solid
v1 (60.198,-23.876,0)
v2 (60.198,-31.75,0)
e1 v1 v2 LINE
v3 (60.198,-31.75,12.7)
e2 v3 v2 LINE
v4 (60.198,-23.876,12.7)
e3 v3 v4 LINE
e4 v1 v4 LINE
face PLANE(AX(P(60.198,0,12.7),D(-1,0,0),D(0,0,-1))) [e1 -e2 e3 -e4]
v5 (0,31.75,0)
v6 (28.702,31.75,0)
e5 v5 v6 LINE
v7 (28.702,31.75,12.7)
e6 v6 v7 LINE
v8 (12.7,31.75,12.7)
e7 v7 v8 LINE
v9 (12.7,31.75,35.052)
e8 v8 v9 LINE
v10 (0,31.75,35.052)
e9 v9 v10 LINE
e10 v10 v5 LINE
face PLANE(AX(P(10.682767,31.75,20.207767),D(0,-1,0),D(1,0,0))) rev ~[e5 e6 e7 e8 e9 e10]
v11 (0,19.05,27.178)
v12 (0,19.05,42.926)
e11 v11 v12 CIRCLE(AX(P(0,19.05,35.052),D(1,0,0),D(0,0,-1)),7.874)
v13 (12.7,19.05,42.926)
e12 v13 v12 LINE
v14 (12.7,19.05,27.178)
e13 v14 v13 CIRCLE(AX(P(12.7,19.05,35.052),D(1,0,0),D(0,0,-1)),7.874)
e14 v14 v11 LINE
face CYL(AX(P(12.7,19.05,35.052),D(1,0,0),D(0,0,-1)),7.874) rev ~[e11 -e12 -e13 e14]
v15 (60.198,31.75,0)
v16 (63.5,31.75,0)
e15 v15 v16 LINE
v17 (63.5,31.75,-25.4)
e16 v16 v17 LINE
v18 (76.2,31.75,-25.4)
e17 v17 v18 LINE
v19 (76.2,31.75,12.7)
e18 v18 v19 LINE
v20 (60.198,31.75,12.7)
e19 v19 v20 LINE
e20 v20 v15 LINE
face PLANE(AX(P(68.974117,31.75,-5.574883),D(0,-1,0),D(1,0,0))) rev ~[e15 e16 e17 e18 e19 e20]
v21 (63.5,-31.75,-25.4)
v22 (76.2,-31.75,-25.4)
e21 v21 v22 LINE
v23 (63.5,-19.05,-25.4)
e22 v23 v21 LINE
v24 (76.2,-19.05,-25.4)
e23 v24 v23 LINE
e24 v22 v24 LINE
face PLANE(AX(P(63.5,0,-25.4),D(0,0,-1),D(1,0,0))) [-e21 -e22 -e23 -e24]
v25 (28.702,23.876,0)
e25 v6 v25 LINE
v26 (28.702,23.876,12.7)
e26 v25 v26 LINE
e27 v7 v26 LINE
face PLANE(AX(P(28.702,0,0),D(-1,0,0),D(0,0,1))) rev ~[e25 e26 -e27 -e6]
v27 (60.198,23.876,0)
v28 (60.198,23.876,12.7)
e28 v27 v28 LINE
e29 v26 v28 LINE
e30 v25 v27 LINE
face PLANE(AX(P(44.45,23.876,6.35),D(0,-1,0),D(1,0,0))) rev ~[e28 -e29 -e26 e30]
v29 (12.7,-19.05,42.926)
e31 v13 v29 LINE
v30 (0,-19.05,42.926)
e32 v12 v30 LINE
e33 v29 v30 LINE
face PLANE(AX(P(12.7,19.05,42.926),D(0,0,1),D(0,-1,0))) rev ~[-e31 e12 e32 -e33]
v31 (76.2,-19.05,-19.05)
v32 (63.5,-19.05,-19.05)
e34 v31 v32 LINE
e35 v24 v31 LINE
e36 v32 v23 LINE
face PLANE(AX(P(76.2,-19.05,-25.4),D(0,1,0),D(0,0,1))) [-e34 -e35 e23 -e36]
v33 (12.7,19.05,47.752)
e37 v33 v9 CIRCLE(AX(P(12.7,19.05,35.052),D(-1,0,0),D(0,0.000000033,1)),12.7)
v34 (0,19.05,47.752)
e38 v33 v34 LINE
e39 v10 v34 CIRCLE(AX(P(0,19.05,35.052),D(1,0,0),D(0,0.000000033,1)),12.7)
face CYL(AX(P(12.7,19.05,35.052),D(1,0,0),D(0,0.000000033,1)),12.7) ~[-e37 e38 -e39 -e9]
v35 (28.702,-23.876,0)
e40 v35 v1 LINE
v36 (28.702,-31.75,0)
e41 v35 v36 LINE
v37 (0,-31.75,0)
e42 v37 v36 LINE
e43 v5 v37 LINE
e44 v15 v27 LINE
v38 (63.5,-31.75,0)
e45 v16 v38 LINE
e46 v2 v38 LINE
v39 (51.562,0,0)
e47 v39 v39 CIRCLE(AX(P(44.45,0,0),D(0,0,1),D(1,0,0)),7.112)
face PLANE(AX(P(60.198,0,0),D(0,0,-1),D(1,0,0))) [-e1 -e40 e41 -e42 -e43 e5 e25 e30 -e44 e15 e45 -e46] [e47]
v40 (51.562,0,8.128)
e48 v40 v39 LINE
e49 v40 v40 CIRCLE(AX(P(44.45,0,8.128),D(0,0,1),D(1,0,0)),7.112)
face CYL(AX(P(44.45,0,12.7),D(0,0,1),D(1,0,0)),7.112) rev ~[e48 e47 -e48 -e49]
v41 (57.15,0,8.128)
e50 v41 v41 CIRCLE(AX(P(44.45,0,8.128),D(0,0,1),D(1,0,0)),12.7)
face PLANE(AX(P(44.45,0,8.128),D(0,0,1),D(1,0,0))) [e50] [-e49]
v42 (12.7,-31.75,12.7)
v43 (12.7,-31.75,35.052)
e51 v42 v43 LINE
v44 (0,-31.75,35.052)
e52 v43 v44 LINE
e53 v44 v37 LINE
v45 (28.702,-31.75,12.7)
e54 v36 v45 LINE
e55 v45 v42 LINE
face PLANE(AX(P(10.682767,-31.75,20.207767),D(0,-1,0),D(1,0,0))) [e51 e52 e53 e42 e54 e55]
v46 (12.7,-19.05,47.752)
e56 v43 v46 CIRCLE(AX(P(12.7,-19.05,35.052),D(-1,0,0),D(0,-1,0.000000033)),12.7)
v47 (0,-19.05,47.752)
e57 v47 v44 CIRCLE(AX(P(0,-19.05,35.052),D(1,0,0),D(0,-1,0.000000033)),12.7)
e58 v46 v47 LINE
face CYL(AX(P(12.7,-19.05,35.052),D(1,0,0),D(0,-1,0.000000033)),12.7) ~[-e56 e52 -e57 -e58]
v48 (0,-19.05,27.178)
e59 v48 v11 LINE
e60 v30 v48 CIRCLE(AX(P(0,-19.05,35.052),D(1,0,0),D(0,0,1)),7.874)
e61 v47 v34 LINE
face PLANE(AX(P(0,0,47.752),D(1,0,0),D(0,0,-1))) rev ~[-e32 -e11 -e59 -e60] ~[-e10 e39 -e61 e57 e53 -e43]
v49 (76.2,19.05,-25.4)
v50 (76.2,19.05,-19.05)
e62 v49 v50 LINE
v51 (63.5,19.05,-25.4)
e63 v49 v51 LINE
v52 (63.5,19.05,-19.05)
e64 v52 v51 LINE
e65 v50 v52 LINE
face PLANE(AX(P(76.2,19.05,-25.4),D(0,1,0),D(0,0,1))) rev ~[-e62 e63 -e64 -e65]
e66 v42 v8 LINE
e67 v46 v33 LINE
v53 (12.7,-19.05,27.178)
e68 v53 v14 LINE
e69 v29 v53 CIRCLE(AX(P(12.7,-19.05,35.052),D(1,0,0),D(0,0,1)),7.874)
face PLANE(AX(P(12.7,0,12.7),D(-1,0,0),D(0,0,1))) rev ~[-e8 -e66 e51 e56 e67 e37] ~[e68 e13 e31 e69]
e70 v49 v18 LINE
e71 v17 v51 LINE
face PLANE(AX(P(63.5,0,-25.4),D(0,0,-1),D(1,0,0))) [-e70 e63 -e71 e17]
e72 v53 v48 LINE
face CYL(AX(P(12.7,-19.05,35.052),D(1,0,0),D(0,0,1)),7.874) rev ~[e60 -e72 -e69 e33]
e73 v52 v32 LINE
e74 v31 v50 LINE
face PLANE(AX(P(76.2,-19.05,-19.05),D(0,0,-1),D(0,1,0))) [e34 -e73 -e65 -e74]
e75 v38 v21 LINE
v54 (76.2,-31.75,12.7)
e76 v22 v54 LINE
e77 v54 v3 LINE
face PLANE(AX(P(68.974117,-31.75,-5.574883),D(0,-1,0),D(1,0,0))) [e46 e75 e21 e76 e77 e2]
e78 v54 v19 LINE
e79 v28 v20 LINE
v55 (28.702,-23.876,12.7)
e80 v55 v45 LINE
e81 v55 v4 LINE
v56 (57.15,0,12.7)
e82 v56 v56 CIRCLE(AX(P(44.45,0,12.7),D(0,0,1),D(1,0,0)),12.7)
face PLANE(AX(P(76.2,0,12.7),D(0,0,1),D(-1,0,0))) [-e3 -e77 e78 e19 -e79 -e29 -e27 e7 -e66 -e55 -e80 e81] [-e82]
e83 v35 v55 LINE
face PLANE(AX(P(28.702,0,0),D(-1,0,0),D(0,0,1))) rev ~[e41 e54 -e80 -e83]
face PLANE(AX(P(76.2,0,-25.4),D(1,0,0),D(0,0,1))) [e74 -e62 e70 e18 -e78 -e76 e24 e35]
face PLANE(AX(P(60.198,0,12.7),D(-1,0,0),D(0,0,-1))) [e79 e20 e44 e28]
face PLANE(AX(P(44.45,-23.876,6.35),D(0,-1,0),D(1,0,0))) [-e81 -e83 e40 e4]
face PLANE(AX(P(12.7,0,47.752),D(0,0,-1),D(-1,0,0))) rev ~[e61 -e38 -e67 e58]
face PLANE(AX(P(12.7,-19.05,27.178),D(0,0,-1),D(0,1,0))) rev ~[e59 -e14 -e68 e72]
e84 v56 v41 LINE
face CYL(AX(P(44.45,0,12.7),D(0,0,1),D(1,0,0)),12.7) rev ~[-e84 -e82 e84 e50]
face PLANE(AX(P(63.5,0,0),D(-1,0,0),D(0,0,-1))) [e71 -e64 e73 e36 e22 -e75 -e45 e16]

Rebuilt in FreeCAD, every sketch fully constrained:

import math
import FreeCAD as App
import Part
import Sketcher

V = App.Vector
Q = App.Units.Quantity

doc = App.newDocument("Part")
body = doc.addObject("PartDesign::Body", "Body")

# Sketch on XZ plane
sketch1 = body.newObject("Sketcher::SketchObject", "Sketch")
sketch1.AttachmentSupport = (doc.getObject("XZ_Plane"), [""])
sketch1.MapMode = "FlatFace"
sketch1.addGeometry([
    Part.LineSegment(V(29, 13, 0), V(29, 0, 0)),
    Part.LineSegment(V(29, 0, 0), V(60, 0, 0)),
    Part.LineSegment(V(60, 0, 0), V(60, 13, 0)),
    Part.LineSegment(V(60, 13, 0), V(29, 13, 0)),
], False)
sketch1.addConstraint([
    Sketcher.Constraint("Coincident", 0, 2, 1, 1),
    Sketcher.Constraint("Coincident", 1, 2, 2, 1),
    Sketcher.Constraint("Coincident", 2, 2, 3, 1),
    Sketcher.Constraint("Coincident", 3, 2, 0, 1),
    Sketcher.Constraint("Vertical", 0),
    Sketcher.Constraint("Horizontal", 1),
    Sketcher.Constraint("Vertical", 2),
    Sketcher.Constraint("Horizontal", 3),
    Sketcher.Constraint("PointOnObject", 0, 2, -1),
    Sketcher.Constraint("DistanceY", 0, 2, 0, 1, Q("0.5 in")),
    Sketcher.Constraint("DistanceX", 1, 1, 1, 2, Q("1.24 in")),
    Sketcher.Constraint("DistanceX", -1, 1, 0, 2, Q("1.13 in")),
])
pad1 = body.newObject("PartDesign::Pad", "Pad")
pad1.Profile = sketch1
pad1.Length = Q("1.88 in")
pad1.Midplane = True

# Sketch on XZ plane
sketch2 = body.newObject("Sketcher::SketchObject", "Sketch001")
sketch2.AttachmentSupport = (doc.getObject("XZ_Plane"), [""])
sketch2.MapMode = "FlatFace"
sketch2.addGeometry([
    Part.LineSegment(V(0, 47.8, 0), V(0, 0, 0)),  # 0
    Part.LineSegment(V(0, 0, 0), V(28.7, 0, 0)),  # 1
    Part.LineSegment(V(28.7, 0, 0), V(28.7, 12.7, 0)),  # 2
    Part.LineSegment(V(28.7, 12.7, 0), V(12.7, 12.7, 0)),  # 3
    Part.LineSegment(V(12.7, 12.7, 0), V(12.7, 47.8, 0)),  # 4
    Part.LineSegment(V(12.7, 47.8, 0), V(0, 47.8, 0)),  # 5
    Part.LineSegment(V(60.2, 12.7, 0), V(60.2, 0, 0)),  # 6
    Part.LineSegment(V(60.2, 0, 0), V(63.5, 0, 0)),  # 7
    Part.LineSegment(V(63.5, 0, 0), V(63.5, -25.4, 0)),  # 8
    Part.LineSegment(V(63.5, -25.4, 0), V(76.2, -25.4, 0)),  # 9
    Part.LineSegment(V(76.2, -25.4, 0), V(76.2, 12.7, 0)),  # 10
    Part.LineSegment(V(76.2, 12.7, 0), V(60.2, 12.7, 0)),  # 11
], False)
sketch2.addConstraint([
    Sketcher.Constraint("Coincident", 0, 2, 1, 1),
    Sketcher.Constraint("Coincident", 1, 2, 2, 1),
    Sketcher.Constraint("Coincident", 2, 2, 3, 1),
    Sketcher.Constraint("Coincident", 3, 2, 4, 1),
    Sketcher.Constraint("Coincident", 4, 2, 5, 1),
    Sketcher.Constraint("Coincident", 5, 2, 0, 1),
    Sketcher.Constraint("Coincident", 6, 2, 7, 1),
    Sketcher.Constraint("Coincident", 7, 2, 8, 1),
    Sketcher.Constraint("Coincident", 8, 2, 9, 1),
    Sketcher.Constraint("Coincident", 9, 2, 10, 1),
    Sketcher.Constraint("Coincident", 10, 2, 11, 1),
    Sketcher.Constraint("Coincident", 11, 2, 6, 1),
    Sketcher.Constraint("Vertical", 0),
    Sketcher.Constraint("Horizontal", 1),
    Sketcher.Constraint("Vertical", 2),
    Sketcher.Constraint("Horizontal", 3),
    Sketcher.Constraint("Vertical", 4),
    Sketcher.Constraint("Horizontal", 5),
    Sketcher.Constraint("Vertical", 6),
    Sketcher.Constraint("Horizontal", 7),
    Sketcher.Constraint("Vertical", 8),
    Sketcher.Constraint("Horizontal", 9),
    Sketcher.Constraint("Vertical", 10),
    Sketcher.Constraint("Horizontal", 11),
    Sketcher.Constraint("Coincident", 0, 2, -1, 1),
    Sketcher.Constraint("PointOnObject", 6, 2, -1),
    Sketcher.Constraint("Horizontal", 3, 2, 10, 2),
    Sketcher.Constraint("Equal", 5, 9),
    Sketcher.Constraint("Equal", 3, 11),
    Sketcher.Constraint("Equal", 9, 2),
    Sketcher.Constraint("DistanceY", 8, 2, 8, 1, Q("1 in")),
    Sketcher.Constraint("DistanceX", 5, 2, 5, 1, Q("0.5 in")),
    Sketcher.Constraint("DistanceX", -1, 1, 9, 2, Q("3 in")),
    Sketcher.Constraint("DistanceX", 1, 1, 1, 2, Q("1.13 in")),
    Sketcher.Constraint("DistanceY", 0, 2, 0, 1, Q("1.88 in")),
])
pad2 = body.newObject("PartDesign::Pad", "Pad001")
pad2.Profile = sketch2
pad2.Length = Q("2.5 in")
pad2.Midplane = True

# Sketch on YZ plane
sketch3 = body.newObject("Sketcher::SketchObject", "Sketch002")
sketch3.AttachmentSupport = (doc.getObject("YZ_Plane"), [""])
sketch3.MapMode = "FlatFace"
sketch3.AttachmentOffset = App.Placement(V(0, 0, 3 * 25.4), App.Rotation())
sketch3.addGeometry([
    Part.LineSegment(V(-19, -19, 0), V(-19, -25, 0)),
    Part.LineSegment(V(-19, -25, 0), V(19, -25, 0)),
    Part.LineSegment(V(19, -25, 0), V(19, -19, 0)),
    Part.LineSegment(V(19, -19, 0), V(-19, -19, 0)),
], False)
sketch3.addConstraint([
    Sketcher.Constraint("Coincident", 0, 2, 1, 1),
    Sketcher.Constraint("Coincident", 1, 2, 2, 1),
    Sketcher.Constraint("Coincident", 2, 2, 3, 1),
    Sketcher.Constraint("Coincident", 3, 2, 0, 1),
    Sketcher.Constraint("Vertical", 0),
    Sketcher.Constraint("Horizontal", 1),
    Sketcher.Constraint("Vertical", 2),
    Sketcher.Constraint("Horizontal", 3),
    Sketcher.Constraint("DistanceX", 1, 1, 1, 2, Q("1.5 in")),
    Sketcher.Constraint("DistanceY", 0, 2, -1, 1, Q("1 in")),
    Sketcher.Constraint("DistanceY", 0, 2, 0, 1, Q("0.25 in")),
    Sketcher.Constraint("DistanceX", 0, 2, -1, 1, Q("0.75 in")),
])
pocket1 = body.newObject("PartDesign::Pocket", "Pocket")
pocket1.Profile = sketch3
pocket1.Type = "ThroughAll"

# Sketch on YZ plane
sketch4 = body.newObject("Sketcher::SketchObject", "Sketch003")
sketch4.AttachmentSupport = (doc.getObject("YZ_Plane"), [""])
sketch4.MapMode = "FlatFace"
sketch4.AttachmentOffset = App.Placement(V(0, 0, 0.5 * 25.4), App.Rotation())
sketch4.addGeometry([
    Part.ArcOfCircle(Part.Circle(V(-19, 35, 0), V(0, 0, 1), 13), math.radians(90), math.radians(180)),  # 0
    Part.LineSegment(V(-19, 48, 0), V(-32, 48, 0)),  # 1
    Part.LineSegment(V(-32, 48, 0), V(-32, 35, 0)),  # 2
    Part.LineSegment(V(19, 43, 0), V(-19, 43, 0)),  # 3
    Part.ArcOfCircle(Part.Circle(V(-19, 35, 0), V(0, 0, 1), 8), math.radians(90), math.radians(270)),  # 4
    Part.LineSegment(V(-19, 27, 0), V(19, 27, 0)),  # 5
    Part.ArcOfCircle(Part.Circle(V(19, 35, 0), V(0, 0, 1), 8), math.radians(-90), math.radians(90)),  # 6
    Part.LineSegment(V(32, 48, 0), V(19, 48, 0)),  # 7
    Part.ArcOfCircle(Part.Circle(V(19, 35, 0), V(0, 0, 1), 13), math.radians(0), math.radians(90)),  # 8
    Part.LineSegment(V(32, 35, 0), V(32, 48, 0)),  # 9
], False)
sketch4.addConstraint([
    Sketcher.Constraint("Tangent", 0, 1, 1, 1),
    Sketcher.Constraint("Coincident", 1, 2, 2, 1),
    Sketcher.Constraint("Tangent", 2, 2, 0, 2),
    Sketcher.Constraint("Tangent", 3, 2, 4, 1),
    Sketcher.Constraint("Tangent", 4, 2, 5, 1),
    Sketcher.Constraint("Tangent", 5, 2, 6, 1),
    Sketcher.Constraint("Tangent", 6, 2, 3, 1),
    Sketcher.Constraint("Tangent", 7, 2, 8, 2),
    Sketcher.Constraint("Tangent", 8, 1, 9, 1),
    Sketcher.Constraint("Coincident", 9, 2, 7, 1),
    Sketcher.Constraint("Horizontal", 1),
    Sketcher.Constraint("Vertical", 2),
    Sketcher.Constraint("Horizontal", 3),
    Sketcher.Constraint("Horizontal", 5),
    Sketcher.Constraint("Horizontal", 7),
    Sketcher.Constraint("Vertical", 9),
    Sketcher.Constraint("Coincident", 4, 3, 0, 3),
    Sketcher.Constraint("Coincident", 8, 3, 6, 3),
    Sketcher.Constraint("Equal", 0, 8),
    Sketcher.Constraint("Radius", 0, Q("0.5 in")),
    Sketcher.Constraint("Radius", 4, Q("0.31 in")),
    Sketcher.Constraint("DistanceX", 3, 2, 3, 1, Q("1.5 in")),
    Sketcher.Constraint("DistanceX", 0, 3, -1, 1, Q("0.75 in")),
    Sketcher.Constraint("DistanceY", -1, 1, 0, 3, Q("1.38 in")),
])
pocket2 = body.newObject("PartDesign::Pocket", "Pocket001")
pocket2.Profile = sketch4
pocket2.Length = Q("1 in")

# Sketch on XY plane
sketch5 = body.newObject("Sketcher::SketchObject", "Sketch004")
sketch5.AttachmentSupport = (doc.getObject("XY_Plane"), [""])
sketch5.MapMode = "FlatFace"
sketch5.AttachmentOffset = App.Placement(V(0, 0, 0.5 * 25.4), App.Rotation())
sketch5.addGeometry(Part.Circle(V(44, 0, 0), V(0, 0, 1), 7), False)
sketch5.addConstraint([
    Sketcher.Constraint("PointOnObject", 0, 3, -1),
    Sketcher.Constraint("Diameter", 0, Q("0.56 in")),
    Sketcher.Constraint("DistanceX", -1, 1, 0, 3, Q("1.75 in")),
])
pocket3 = body.newObject("PartDesign::Pocket", "Pocket002")
pocket3.Profile = sketch5
pocket3.Type = "ThroughAll"

# Sketch on XY plane
sketch6 = body.newObject("Sketcher::SketchObject", "Sketch005")
sketch6.AttachmentSupport = (doc.getObject("XY_Plane"), [""])
sketch6.MapMode = "FlatFace"
sketch6.AttachmentOffset = App.Placement(V(0, 0, 0.5 * 25.4), App.Rotation())
sketch6.addGeometry([
    Part.Circle(V(44, 0, 0), V(0, 0, 1), 13),
    Part.Circle(V(44, 0, 0), V(0, 0, 1), 7),
], False)
sketch6.addConstraint([
    Sketcher.Constraint("Coincident", 1, 3, 0, 3),
    Sketcher.Constraint("PointOnObject", 0, 3, -1),
    Sketcher.Constraint("Diameter", 0, Q("1 in")),
    Sketcher.Constraint("Diameter", 1, Q("0.56 in")),
    Sketcher.Constraint("DistanceX", -1, 1, 0, 3, Q("1.75 in")),
])
pocket4 = body.newObject("PartDesign::Pocket", "Pocket003")
pocket4.Profile = sketch6
pocket4.Length = Q("0.18 in")

doc.recompute()
